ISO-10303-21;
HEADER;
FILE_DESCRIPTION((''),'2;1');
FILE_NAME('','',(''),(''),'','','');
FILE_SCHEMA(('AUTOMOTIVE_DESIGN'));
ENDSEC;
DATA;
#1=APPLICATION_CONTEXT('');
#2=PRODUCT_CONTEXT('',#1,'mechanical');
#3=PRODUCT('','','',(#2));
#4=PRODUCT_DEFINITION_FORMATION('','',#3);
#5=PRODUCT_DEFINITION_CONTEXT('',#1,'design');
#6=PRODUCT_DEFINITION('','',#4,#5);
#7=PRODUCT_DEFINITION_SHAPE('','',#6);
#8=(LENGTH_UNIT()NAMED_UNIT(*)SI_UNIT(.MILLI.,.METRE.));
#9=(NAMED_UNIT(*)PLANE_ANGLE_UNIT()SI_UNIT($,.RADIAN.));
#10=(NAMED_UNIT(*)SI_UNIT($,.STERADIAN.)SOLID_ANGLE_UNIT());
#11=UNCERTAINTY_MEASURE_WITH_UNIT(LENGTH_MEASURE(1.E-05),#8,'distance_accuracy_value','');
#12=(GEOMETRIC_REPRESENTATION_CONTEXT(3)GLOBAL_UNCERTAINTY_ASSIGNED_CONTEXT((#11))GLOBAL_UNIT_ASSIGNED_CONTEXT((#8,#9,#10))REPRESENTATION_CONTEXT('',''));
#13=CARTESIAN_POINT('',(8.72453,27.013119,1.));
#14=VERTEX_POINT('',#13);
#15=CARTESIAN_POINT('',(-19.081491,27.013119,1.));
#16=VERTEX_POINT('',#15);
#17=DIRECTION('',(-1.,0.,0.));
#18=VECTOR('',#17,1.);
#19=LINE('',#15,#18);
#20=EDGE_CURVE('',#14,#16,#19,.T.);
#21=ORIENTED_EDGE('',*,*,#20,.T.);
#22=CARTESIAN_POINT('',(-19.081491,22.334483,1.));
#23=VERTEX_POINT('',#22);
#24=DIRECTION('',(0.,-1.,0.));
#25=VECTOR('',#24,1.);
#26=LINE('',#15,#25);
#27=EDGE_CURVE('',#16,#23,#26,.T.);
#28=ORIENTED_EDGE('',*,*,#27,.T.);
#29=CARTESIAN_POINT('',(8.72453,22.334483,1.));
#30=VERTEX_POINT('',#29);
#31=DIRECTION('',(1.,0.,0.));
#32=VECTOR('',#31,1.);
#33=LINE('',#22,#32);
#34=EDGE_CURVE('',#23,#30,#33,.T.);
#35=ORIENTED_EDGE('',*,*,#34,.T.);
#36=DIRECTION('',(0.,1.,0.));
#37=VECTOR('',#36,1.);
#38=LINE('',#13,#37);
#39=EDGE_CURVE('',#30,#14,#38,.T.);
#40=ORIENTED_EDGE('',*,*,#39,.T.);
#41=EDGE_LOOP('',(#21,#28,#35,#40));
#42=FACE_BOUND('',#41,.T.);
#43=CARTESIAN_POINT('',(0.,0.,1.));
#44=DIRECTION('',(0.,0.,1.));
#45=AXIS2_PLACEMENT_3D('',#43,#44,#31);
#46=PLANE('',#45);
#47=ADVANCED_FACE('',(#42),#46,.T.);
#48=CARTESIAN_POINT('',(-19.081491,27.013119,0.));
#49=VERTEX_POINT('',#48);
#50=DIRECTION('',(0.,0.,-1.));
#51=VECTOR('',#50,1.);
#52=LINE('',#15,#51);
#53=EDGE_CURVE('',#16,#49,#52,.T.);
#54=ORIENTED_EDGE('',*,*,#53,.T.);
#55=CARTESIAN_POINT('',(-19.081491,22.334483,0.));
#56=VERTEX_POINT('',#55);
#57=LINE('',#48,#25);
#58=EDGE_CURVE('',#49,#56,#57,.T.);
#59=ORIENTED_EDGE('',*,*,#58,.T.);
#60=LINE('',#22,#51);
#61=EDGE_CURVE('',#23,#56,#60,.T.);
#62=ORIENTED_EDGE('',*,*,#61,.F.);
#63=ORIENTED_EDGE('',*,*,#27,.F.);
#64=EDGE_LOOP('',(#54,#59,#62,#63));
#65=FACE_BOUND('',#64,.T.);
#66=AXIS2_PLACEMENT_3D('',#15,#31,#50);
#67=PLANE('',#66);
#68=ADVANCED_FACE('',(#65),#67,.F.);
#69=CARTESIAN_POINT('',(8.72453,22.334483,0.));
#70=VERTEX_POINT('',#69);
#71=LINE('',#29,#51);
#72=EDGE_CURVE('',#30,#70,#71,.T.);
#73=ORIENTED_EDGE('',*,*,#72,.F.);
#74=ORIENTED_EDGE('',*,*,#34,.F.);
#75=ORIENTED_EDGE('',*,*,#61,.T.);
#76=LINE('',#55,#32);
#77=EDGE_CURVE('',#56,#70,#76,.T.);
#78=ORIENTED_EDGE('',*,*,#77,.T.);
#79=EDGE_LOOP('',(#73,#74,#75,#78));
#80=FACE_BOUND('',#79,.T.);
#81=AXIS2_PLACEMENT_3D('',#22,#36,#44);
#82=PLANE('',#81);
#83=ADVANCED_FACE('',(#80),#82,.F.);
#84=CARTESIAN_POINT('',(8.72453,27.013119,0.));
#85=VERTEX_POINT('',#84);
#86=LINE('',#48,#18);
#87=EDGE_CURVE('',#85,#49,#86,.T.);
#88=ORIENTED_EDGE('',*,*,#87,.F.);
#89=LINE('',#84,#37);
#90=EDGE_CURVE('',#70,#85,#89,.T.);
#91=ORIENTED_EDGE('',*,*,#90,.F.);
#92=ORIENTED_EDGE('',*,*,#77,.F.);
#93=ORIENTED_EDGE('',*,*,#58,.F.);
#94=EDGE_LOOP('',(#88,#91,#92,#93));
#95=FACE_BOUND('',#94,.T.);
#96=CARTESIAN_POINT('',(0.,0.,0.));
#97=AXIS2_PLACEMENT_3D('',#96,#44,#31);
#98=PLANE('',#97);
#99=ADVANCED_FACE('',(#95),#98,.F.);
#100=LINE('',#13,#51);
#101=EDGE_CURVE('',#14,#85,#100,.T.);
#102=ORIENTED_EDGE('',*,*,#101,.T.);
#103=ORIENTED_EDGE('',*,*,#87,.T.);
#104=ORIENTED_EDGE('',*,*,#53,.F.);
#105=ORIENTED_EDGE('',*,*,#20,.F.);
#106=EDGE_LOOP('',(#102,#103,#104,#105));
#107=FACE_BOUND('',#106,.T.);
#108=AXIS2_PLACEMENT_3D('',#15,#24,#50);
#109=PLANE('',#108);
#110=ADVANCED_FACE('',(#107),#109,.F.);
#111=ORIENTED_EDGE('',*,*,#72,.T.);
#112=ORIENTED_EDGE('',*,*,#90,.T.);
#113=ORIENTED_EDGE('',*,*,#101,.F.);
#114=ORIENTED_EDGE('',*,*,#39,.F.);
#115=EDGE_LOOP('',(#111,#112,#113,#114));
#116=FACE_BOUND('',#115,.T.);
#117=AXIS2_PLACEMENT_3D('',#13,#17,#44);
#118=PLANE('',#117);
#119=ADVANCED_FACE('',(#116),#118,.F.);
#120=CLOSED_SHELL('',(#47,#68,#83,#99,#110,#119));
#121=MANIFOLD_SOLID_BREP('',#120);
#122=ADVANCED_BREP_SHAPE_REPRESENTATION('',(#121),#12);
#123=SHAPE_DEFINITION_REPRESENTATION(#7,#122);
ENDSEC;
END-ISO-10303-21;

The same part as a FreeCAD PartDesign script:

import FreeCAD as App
import Part
import Sketcher

V = App.Vector
Q = App.Units.Quantity


def add_polygon(sketch, points):
    """Adds a closed chain of lines whose ends are joined by coincident constraints."""
    first, n = sketch.GeometryCount, len(points)
    for a, b in zip(points, points[1:] + points[:1]):
        sketch.addGeometry(Part.LineSegment(App.Vector(*a, 0), App.Vector(*b, 0)), False)
    for i in range(n):
        sketch.addConstraint(Sketcher.Constraint("Coincident", first + i, 2, first + (i + 1) % n, 1))

doc = App.newDocument("Part")
body = doc.addObject("PartDesign::Body", "Body")

# Sketch on XY plane
sketch1 = body.newObject("Sketcher::SketchObject", "Sketch")
sketch1.AttachmentSupport = (doc.getObject("XY_Plane"), [""])
sketch1.MapMode = "FlatFace"
add_polygon(sketch1, [(-19.1, 27), (-19.1, 22.3), (8.7, 22.3), (8.7, 27)])  # lines 0-3
sketch1.addConstraint([
    Sketcher.Constraint("Vertical", 0),
    Sketcher.Constraint("Horizontal", 1),
    Sketcher.Constraint("Vertical", 2),
    Sketcher.Constraint("Horizontal", 3),
    Sketcher.Constraint("DistanceX", 1, 1, 1, 2, Q("27.806021 mm")),
    Sketcher.Constraint("DistanceY", 0, 2, 0, 1, Q("4.678636 mm")),
    Sketcher.Constraint("DistanceX", 0, 2, -1, 1, Q("19.081491 mm")),
    Sketcher.Constraint("DistanceY", -1, 1, 2, 2, Q("27.013119 mm")),
])
pad1 = body.newObject("PartDesign::Pad", "Pad")
pad1.Profile = sketch1
pad1.Length = 1

doc.recompute()
